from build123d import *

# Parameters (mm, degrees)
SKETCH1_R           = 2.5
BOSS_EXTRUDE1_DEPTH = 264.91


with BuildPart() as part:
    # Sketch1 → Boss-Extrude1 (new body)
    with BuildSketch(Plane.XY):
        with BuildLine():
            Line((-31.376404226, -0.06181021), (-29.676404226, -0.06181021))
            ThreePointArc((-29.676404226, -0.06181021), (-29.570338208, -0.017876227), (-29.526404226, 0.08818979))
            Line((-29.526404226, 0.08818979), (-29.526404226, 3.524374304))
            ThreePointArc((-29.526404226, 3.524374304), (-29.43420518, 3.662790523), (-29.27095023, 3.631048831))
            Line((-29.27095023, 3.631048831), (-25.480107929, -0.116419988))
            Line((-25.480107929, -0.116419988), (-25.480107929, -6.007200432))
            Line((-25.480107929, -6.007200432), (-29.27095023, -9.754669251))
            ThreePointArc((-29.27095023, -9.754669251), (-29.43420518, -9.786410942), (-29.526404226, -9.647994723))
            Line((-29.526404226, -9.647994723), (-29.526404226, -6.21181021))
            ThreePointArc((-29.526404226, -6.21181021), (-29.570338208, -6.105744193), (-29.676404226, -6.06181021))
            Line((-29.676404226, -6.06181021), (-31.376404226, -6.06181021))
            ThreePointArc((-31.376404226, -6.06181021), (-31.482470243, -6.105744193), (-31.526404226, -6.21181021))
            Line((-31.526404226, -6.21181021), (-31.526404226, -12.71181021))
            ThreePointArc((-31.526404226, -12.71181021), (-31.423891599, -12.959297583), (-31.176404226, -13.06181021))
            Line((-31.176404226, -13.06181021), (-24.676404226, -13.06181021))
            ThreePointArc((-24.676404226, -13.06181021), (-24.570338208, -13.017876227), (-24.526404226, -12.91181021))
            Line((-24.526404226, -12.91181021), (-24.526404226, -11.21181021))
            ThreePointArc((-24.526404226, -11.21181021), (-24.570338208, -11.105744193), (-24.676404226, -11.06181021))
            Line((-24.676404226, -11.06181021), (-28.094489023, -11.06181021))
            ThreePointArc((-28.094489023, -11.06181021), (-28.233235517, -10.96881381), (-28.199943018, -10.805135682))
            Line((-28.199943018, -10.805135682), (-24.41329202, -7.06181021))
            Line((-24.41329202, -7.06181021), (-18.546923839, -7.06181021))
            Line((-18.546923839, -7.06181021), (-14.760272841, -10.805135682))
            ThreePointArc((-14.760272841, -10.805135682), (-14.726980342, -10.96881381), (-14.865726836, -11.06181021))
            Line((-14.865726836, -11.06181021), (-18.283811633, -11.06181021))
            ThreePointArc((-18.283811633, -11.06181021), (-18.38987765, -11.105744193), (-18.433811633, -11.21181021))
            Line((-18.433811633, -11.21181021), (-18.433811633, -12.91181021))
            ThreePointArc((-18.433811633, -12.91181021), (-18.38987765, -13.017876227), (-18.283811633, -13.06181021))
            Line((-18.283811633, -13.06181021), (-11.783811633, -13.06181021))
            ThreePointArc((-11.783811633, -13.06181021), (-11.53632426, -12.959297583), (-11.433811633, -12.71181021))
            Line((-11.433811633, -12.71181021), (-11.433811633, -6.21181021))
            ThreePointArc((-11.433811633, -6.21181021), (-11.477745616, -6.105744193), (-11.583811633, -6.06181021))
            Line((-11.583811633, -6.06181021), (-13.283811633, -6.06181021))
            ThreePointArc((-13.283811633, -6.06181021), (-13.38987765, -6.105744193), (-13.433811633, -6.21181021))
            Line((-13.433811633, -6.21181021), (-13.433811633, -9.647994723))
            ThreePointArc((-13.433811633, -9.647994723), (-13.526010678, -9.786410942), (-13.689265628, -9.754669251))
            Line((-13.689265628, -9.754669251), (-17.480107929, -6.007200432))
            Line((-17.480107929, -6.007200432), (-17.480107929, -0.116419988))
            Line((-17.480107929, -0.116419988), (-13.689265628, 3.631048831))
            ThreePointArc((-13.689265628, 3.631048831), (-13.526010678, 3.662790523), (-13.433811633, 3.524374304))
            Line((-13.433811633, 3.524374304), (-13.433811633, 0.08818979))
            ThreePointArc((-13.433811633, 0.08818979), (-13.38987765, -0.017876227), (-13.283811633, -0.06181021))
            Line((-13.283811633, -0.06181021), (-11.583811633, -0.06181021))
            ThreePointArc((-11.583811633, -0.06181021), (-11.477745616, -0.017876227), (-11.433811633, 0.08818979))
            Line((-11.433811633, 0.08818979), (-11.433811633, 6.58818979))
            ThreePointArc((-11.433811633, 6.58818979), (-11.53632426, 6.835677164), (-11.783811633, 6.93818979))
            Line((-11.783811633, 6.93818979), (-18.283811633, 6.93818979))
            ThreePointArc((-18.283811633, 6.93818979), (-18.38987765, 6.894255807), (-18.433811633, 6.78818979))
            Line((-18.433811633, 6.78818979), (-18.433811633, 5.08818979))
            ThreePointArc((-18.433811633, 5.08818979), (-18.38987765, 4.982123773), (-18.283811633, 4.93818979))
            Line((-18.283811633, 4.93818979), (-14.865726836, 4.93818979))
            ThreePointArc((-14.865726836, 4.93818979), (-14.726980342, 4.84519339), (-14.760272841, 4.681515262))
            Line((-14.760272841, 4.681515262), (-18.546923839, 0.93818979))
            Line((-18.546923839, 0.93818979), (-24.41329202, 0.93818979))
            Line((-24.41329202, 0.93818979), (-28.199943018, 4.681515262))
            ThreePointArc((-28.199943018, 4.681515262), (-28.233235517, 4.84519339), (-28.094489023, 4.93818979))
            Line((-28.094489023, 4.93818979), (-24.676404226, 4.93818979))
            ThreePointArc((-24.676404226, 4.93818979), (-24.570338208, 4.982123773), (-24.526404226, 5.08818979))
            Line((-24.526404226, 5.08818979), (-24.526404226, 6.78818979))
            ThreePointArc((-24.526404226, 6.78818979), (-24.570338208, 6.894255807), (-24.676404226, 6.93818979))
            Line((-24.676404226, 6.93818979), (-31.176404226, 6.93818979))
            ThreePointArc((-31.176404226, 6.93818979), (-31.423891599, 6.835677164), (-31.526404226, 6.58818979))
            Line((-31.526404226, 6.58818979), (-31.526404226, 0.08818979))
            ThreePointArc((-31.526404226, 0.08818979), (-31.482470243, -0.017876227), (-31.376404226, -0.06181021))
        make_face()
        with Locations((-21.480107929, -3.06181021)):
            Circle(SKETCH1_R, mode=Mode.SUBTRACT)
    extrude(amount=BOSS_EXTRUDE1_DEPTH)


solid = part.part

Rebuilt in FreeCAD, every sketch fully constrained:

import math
import FreeCAD as App
import Part
import Sketcher

V = App.Vector
Q = App.Units.Quantity

doc = App.newDocument("Part")
body = doc.addObject("PartDesign::Body", "Body")

sketch1 = doc.addObject("Sketcher::SketchObject", "Sketch")
body.addObject(sketch1)
sketch1.AttachmentSupport = (doc.XY_Plane, [""])
sketch1.MapMode = "FlatFace"
sketch1.addGeometry([
    Part.LineSegment(V(-31.38, -0.06, 0), V(-29.68, -0.06, 0)),
    Part.ArcOfCircle(Part.Circle(V(-29.68, 0.09, 0), V(0, 0, 1), 0.15), math.radians(-90), math.radians(0)),
    Part.LineSegment(V(-29.53, 0.09, 0), V(-29.53, 3.52, 0)),
    Part.ArcOfCircle(Part.Circle(V(-29.38, 3.52, 0), V(0, 0, 1), 0.15), math.radians(45), math.radians(180)),
    Part.LineSegment(V(-29.27, 3.63, 0), V(-25.48, -0.12, 0)),
    Part.LineSegment(V(-25.48, -0.12, 0), V(-25.48, -6.01, 0)),
    Part.LineSegment(V(-25.48, -6.01, 0), V(-29.27, -9.75, 0)),
    Part.ArcOfCircle(Part.Circle(V(-29.38, -9.65, 0), V(0, 0, 1), 0.15), math.radians(-180), math.radians(-45)),
    Part.LineSegment(V(-29.53, -9.65, 0), V(-29.53, -6.21, 0)),
    Part.ArcOfCircle(Part.Circle(V(-29.68, -6.21, 0), V(0, 0, 1), 0.15), math.radians(0), math.radians(90)),
    Part.LineSegment(V(-29.68, -6.06, 0), V(-31.38, -6.06, 0)),
    Part.ArcOfCircle(Part.Circle(V(-31.38, -6.21, 0), V(0, 0, 1), 0.15), math.radians(90), math.radians(180)),
    Part.LineSegment(V(-31.53, -6.21, 0), V(-31.53, -12.71, 0)),
    Part.ArcOfCircle(Part.Circle(V(-31.18, -12.71, 0), V(0, 0, 1), 0.35), math.radians(-180), math.radians(-90)),
    Part.LineSegment(V(-31.18, -13.06, 0), V(-24.68, -13.06, 0)),
    Part.ArcOfCircle(Part.Circle(V(-24.68, -12.91, 0), V(0, 0, 1), 0.15), math.radians(-90), math.radians(0)),
    Part.LineSegment(V(-24.53, -12.91, 0), V(-24.53, -11.21, 0)),
    Part.ArcOfCircle(Part.Circle(V(-24.68, -11.21, 0), V(0, 0, 1), 0.15), math.radians(0), math.radians(90)),
    Part.LineSegment(V(-24.68, -11.06, 0), V(-28.09, -11.06, 0)),
    Part.ArcOfCircle(Part.Circle(V(-28.09, -10.91, 0), V(0, 0, 1), 0.15), math.radians(135), math.radians(270)),
    Part.LineSegment(V(-28.2, -10.81, 0), V(-24.41, -7.06, 0)),
    Part.LineSegment(V(-24.41, -7.06, 0), V(-18.55, -7.06, 0)),
    Part.LineSegment(V(-18.55, -7.06, 0), V(-14.76, -10.81, 0)),
    Part.ArcOfCircle(Part.Circle(V(-14.87, -10.91, 0), V(0, 0, 1), 0.15), math.radians(-90), math.radians(45)),
    Part.LineSegment(V(-14.87, -11.06, 0), V(-18.28, -11.06, 0)),
    Part.ArcOfCircle(Part.Circle(V(-18.28, -11.21, 0), V(0, 0, 1), 0.15), math.radians(90), math.radians(180)),
    Part.LineSegment(V(-18.43, -11.21, 0), V(-18.43, -12.91, 0)),
    Part.ArcOfCircle(Part.Circle(V(-18.28, -12.91, 0), V(0, 0, 1), 0.15), math.radians(-180), math.radians(-90)),
    Part.LineSegment(V(-18.28, -13.06, 0), V(-11.78, -13.06, 0)),
    Part.ArcOfCircle(Part.Circle(V(-11.78, -12.71, 0), V(0, 0, 1), 0.35), math.radians(-90), math.radians(0)),
    Part.LineSegment(V(-11.43, -12.71, 0), V(-11.43, -6.21, 0)),
    Part.ArcOfCircle(Part.Circle(V(-11.58, -6.21, 0), V(0, 0, 1), 0.15), math.radians(0), math.radians(90)),
    Part.LineSegment(V(-11.58, -6.06, 0), V(-13.28, -6.06, 0)),
    Part.ArcOfCircle(Part.Circle(V(-13.28, -6.21, 0), V(0, 0, 1), 0.15), math.radians(90), math.radians(180)),
    Part.LineSegment(V(-13.43, -6.21, 0), V(-13.43, -9.65, 0)),
    Part.ArcOfCircle(Part.Circle(V(-13.58, -9.65, 0), V(0, 0, 1), 0.15), math.radians(-135), math.radians(0)),
    Part.LineSegment(V(-13.69, -9.75, 0), V(-17.48, -6.01, 0)),
    Part.LineSegment(V(-17.48, -6.01, 0), V(-17.48, -0.12, 0)),
    Part.LineSegment(V(-17.48, -0.12, 0), V(-13.69, 3.63, 0)),
    Part.ArcOfCircle(Part.Circle(V(-13.58, 3.52, 0), V(0, 0, 1), 0.15), math.radians(0), math.radians(135)),
    Part.LineSegment(V(-13.43, 3.52, 0), V(-13.43, 0.09, 0)),
    Part.ArcOfCircle(Part.Circle(V(-13.28, 0.09, 0), V(0, 0, 1), 0.15), math.radians(-180), math.radians(-90)),
    Part.LineSegment(V(-13.28, -0.06, 0), V(-11.58, -0.06, 0)),
    Part.ArcOfCircle(Part.Circle(V(-11.58, 0.09, 0), V(0, 0, 1), 0.15), math.radians(-90), math.radians(0)),
    Part.LineSegment(V(-11.43, 0.09, 0), V(-11.43, 6.59, 0)),
    Part.ArcOfCircle(Part.Circle(V(-11.78, 6.59, 0), V(0, 0, 1), 0.35), math.radians(0), math.radians(90)),
    Part.LineSegment(V(-11.78, 6.94, 0), V(-18.28, 6.94, 0)),
    Part.ArcOfCircle(Part.Circle(V(-18.28, 6.79, 0), V(0, 0, 1), 0.15), math.radians(90), math.radians(180)),
    Part.LineSegment(V(-18.43, 6.79, 0), V(-18.43, 5.09, 0)),
    Part.ArcOfCircle(Part.Circle(V(-18.28, 5.09, 0), V(0, 0, 1), 0.15), math.radians(-180), math.radians(-90)),
    Part.LineSegment(V(-18.28, 4.94, 0), V(-14.87, 4.94, 0)),
    Part.ArcOfCircle(Part.Circle(V(-14.87, 4.79, 0), V(0, 0, 1), 0.15), math.radians(-45), math.radians(90)),
    Part.LineSegment(V(-14.76, 4.68, 0), V(-18.55, 0.94, 0)),
    Part.LineSegment(V(-18.55, 0.94, 0), V(-24.41, 0.94, 0)),
    Part.LineSegment(V(-24.41, 0.94, 0), V(-28.2, 4.68, 0)),
    Part.ArcOfCircle(Part.Circle(V(-28.09, 4.79, 0), V(0, 0, 1), 0.15), math.radians(90), math.radians(225)),
    Part.LineSegment(V(-28.09, 4.94, 0), V(-24.68, 4.94, 0)),
    Part.ArcOfCircle(Part.Circle(V(-24.68, 5.09, 0), V(0, 0, 1), 0.15), math.radians(-90), math.radians(0)),
    Part.LineSegment(V(-24.53, 5.09, 0), V(-24.53, 6.79, 0)),
    Part.ArcOfCircle(Part.Circle(V(-24.68, 6.79, 0), V(0, 0, 1), 0.15), math.radians(0), math.radians(90)),
    Part.LineSegment(V(-24.68, 6.94, 0), V(-31.18, 6.94, 0)),
    Part.ArcOfCircle(Part.Circle(V(-31.18, 6.59, 0), V(0, 0, 1), 0.35), math.radians(90), math.radians(180)),
    Part.LineSegment(V(-31.53, 6.59, 0), V(-31.53, 0.09, 0)),
    Part.ArcOfCircle(Part.Circle(V(-31.38, 0.09, 0), V(0, 0, 1), 0.15), math.radians(-180), math.radians(-90)),
    Part.Circle(V(-21.48, -3.06, 0), V(0, 0, 1), 2.5),
], False)
sketch1.addConstraint([
    Sketcher.Constraint("Tangent", 0, 2, 1, 1),
    Sketcher.Constraint("Tangent", 1, 2, 2, 1),
    Sketcher.Constraint("Tangent", 2, 2, 3, 2),
    Sketcher.Constraint("Tangent", 3, 1, 4, 1),
    Sketcher.Constraint("Coincident", 4, 2, 5, 1),
    Sketcher.Constraint("Coincident", 5, 2, 6, 1),
    Sketcher.Constraint("Tangent", 6, 2, 7, 2),
    Sketcher.Constraint("Tangent", 7, 1, 8, 1),
    Sketcher.Constraint("Tangent", 8, 2, 9, 1),
    Sketcher.Constraint("Tangent", 9, 2, 10, 1),
    Sketcher.Constraint("Tangent", 10, 2, 11, 1),
    Sketcher.Constraint("Tangent", 11, 2, 12, 1),
    Sketcher.Constraint("Tangent", 12, 2, 13, 1),
    Sketcher.Constraint("Tangent", 13, 2, 14, 1),
    Sketcher.Constraint("Tangent", 14, 2, 15, 1),
    Sketcher.Constraint("Tangent", 15, 2, 16, 1),
    Sketcher.Constraint("Tangent", 16, 2, 17, 1),
    Sketcher.Constraint("Tangent", 17, 2, 18, 1),
    Sketcher.Constraint("Tangent", 18, 2, 19, 2),
    Sketcher.Constraint("Tangent", 19, 1, 20, 1),
    Sketcher.Constraint("Coincident", 20, 2, 21, 1),
    Sketcher.Constraint("Coincident", 21, 2, 22, 1),
    Sketcher.Constraint("Tangent", 22, 2, 23, 2),
    Sketcher.Constraint("Tangent", 23, 1, 24, 1),
    Sketcher.Constraint("Tangent", 24, 2, 25, 1),
    Sketcher.Constraint("Tangent", 25, 2, 26, 1),
    Sketcher.Constraint("Tangent", 26, 2, 27, 1),
    Sketcher.Constraint("Tangent", 27, 2, 28, 1),
    Sketcher.Constraint("Tangent", 28, 2, 29, 1),
    Sketcher.Constraint("Tangent", 29, 2, 30, 1),
    Sketcher.Constraint("Tangent", 30, 2, 31, 1),
    Sketcher.Constraint("Tangent", 31, 2, 32, 1),
    Sketcher.Constraint("Tangent", 32, 2, 33, 1),
    Sketcher.Constraint("Tangent", 33, 2, 34, 1),
    Sketcher.Constraint("Tangent", 34, 2, 35, 2),
    Sketcher.Constraint("Tangent", 35, 1, 36, 1),
    Sketcher.Constraint("Coincident", 36, 2, 37, 1),
    Sketcher.Constraint("Coincident", 37, 2, 38, 1),
    Sketcher.Constraint("Tangent", 38, 2, 39, 2),
    Sketcher.Constraint("Tangent", 39, 1, 40, 1),
    Sketcher.Constraint("Tangent", 40, 2, 41, 1),
    Sketcher.Constraint("Tangent", 41, 2, 42, 1),
    Sketcher.Constraint("Tangent", 42, 2, 43, 1),
    Sketcher.Constraint("Tangent", 43, 2, 44, 1),
    Sketcher.Constraint("Tangent", 44, 2, 45, 1),
    Sketcher.Constraint("Tangent", 45, 2, 46, 1),
    Sketcher.Constraint("Tangent", 46, 2, 47, 1),
    Sketcher.Constraint("Tangent", 47, 2, 48, 1),
    Sketcher.Constraint("Tangent", 48, 2, 49, 1),
    Sketcher.Constraint("Tangent", 49, 2, 50, 1),
    Sketcher.Constraint("Tangent", 50, 2, 51, 2),
    Sketcher.Constraint("Tangent", 51, 1, 52, 1),
    Sketcher.Constraint("Coincident", 52, 2, 53, 1),
    Sketcher.Constraint("Coincident", 53, 2, 54, 1),
    Sketcher.Constraint("Tangent", 54, 2, 55, 2),
    Sketcher.Constraint("Tangent", 55, 1, 56, 1),
    Sketcher.Constraint("Tangent", 56, 2, 57, 1),
    Sketcher.Constraint("Tangent", 57, 2, 58, 1),
    Sketcher.Constraint("Tangent", 58, 2, 59, 1),
    Sketcher.Constraint("Tangent", 59, 2, 60, 1),
    Sketcher.Constraint("Tangent", 60, 2, 61, 1),
    Sketcher.Constraint("Tangent", 61, 2, 62, 1),
    Sketcher.Constraint("Tangent", 62, 2, 63, 1),
    Sketcher.Constraint("Tangent", 63, 2, 0, 1),
    Sketcher.Constraint("Horizontal", 0),
    Sketcher.Constraint("Vertical", 2),
    Sketcher.Constraint("Vertical", 5),
    Sketcher.Constraint("Vertical", 8),
    Sketcher.Constraint("Horizontal", 10),
    Sketcher.Constraint("Vertical", 12),
    Sketcher.Constraint("Horizontal", 14),
    Sketcher.Constraint("Vertical", 16),
    Sketcher.Constraint("Horizontal", 18),
    Sketcher.Constraint("Horizontal", 21),
    Sketcher.Constraint("Horizontal", 24),
    Sketcher.Constraint("Vertical", 26),
    Sketcher.Constraint("Horizontal", 28),
    Sketcher.Constraint("Vertical", 30),
    Sketcher.Constraint("Horizontal", 32),
    Sketcher.Constraint("Vertical", 34),
    Sketcher.Constraint("Vertical", 37),
    Sketcher.Constraint("Vertical", 40),
    Sketcher.Constraint("Horizontal", 42),
    Sketcher.Constraint("Vertical", 44),
    Sketcher.Constraint("Horizontal", 46),
    Sketcher.Constraint("Vertical", 48),
    Sketcher.Constraint("Horizontal", 50),
    Sketcher.Constraint("Horizontal", 53),
    Sketcher.Constraint("Horizontal", 56),
    Sketcher.Constraint("Vertical", 58),
    Sketcher.Constraint("Horizontal", 60),
    Sketcher.Constraint("Vertical", 62),
    Sketcher.Constraint("Equal", 1, 3),
    Sketcher.Constraint("Equal", 3, 7),
    Sketcher.Constraint("Equal", 7, 9),
    Sketcher.Constraint("Equal", 9, 11),
    Sketcher.Constraint("Equal", 11, 15),
    Sketcher.Constraint("Equal", 15, 17),
    Sketcher.Constraint("Equal", 17, 19),
    Sketcher.Constraint("Equal", 19, 23),
    Sketcher.Constraint("Equal", 23, 25),
    Sketcher.Constraint("Equal", 25, 27),
    Sketcher.Constraint("Equal", 13, 29),
    Sketcher.Constraint("Equal", 27, 31),
    Sketcher.Constraint("Equal", 31, 33),
    Sketcher.Constraint("Equal", 33, 35),
    Sketcher.Constraint("Equal", 35, 39),
    Sketcher.Constraint("Equal", 39, 41),
    Sketcher.Constraint("Equal", 41, 43),
    Sketcher.Constraint("Equal", 29, 45),
    Sketcher.Constraint("Equal", 43, 47),
    Sketcher.Constraint("Equal", 47, 49),
    Sketcher.Constraint("Equal", 49, 51),
    Sketcher.Constraint("Equal", 51, 55),
    Sketcher.Constraint("Equal", 55, 57),
    Sketcher.Constraint("Equal", 57, 59),
    Sketcher.Constraint("Equal", 45, 61),
    Sketcher.Constraint("Equal", 59, 63),
    Sketcher.Constraint("Parallel", 6, 20),
    Sketcher.Constraint("Parallel", 4, 22),
    Sketcher.Constraint("Parallel", 22, 36),
    Sketcher.Constraint("Parallel", 20, 38),
    Sketcher.Constraint("Parallel", 38, 52),
    Sketcher.Constraint("Parallel", 36, 54),
    Sketcher.Constraint("Horizontal", 19, 3, 23, 3),
    Sketcher.Constraint("Horizontal", 15, 3, 27, 3),
    Sketcher.Constraint("Horizontal", 11, 3, 31, 3),
    Sketcher.Constraint("Horizontal", 7, 3, 35, 3),
    Sketcher.Constraint("Horizontal", 3, 3, 39, 3),
    Sketcher.Constraint("Horizontal", 1, 3, 41, 3),
    Sketcher.Constraint("Horizontal", 51, 3, 55, 3),
    Sketcher.Constraint("Horizontal", 47, 3, 59, 3),
    Sketcher.Constraint("Horizontal", 19, 1, 22, 2),
    Sketcher.Constraint("Horizontal", 5, 2, 36, 2),
    Sketcher.Constraint("Horizontal", 4, 2, 37, 2),
    Sketcher.Constraint("Vertical", 3, 3, 7, 3),
    Sketcher.Constraint("Vertical", 31, 3, 43, 3),
    Sketcher.Constraint("Vertical", 27, 3, 47, 3),
    Sketcher.Constraint("Vertical", 23, 3, 51, 3),
    Sketcher.Constraint("Vertical", 19, 3, 55, 3),
    Sketcher.Constraint("Vertical", 17, 3, 57, 3),
    Sketcher.Constraint("Vertical", 13, 3, 61, 3),
    Sketcher.Constraint("Vertical", 21, 2, 52, 2),
    Sketcher.Constraint("Equal", 18, 24),
    Sketcher.Constraint("Equal", 14, 28),
    Sketcher.Constraint("Equal", 10, 32),
    Sketcher.Constraint("Equal", 2, 8),
    Sketcher.Constraint("Equal", 60, 12),
    Sketcher.Constraint("Equal", 42, 16),
    Sketcher.Constraint("Equal", 30, 44),
    Sketcher.Constraint("Equal", 26, 48),
    Sketcher.Constraint("Diameter", 64, Q("5 mm")),
    Sketcher.Constraint("Radius", 1, Q("0.15 mm")),
    Sketcher.Constraint("Radius", 13, Q("0.35 mm")),
    Sketcher.Constraint("DistanceX", 0, 1, 0, 2, Q("1.7 mm")),
    Sketcher.Constraint("DistanceX", 14, 1, 14, 2, Q("6.5 mm")),
    Sketcher.Constraint("DistanceX", 21, 1, 21, 2, Q("5.866368 mm")),
    Sketcher.Constraint("DistanceY", 5, 2, 5, 1, Q("5.89078 mm")),
    Sketcher.Constraint("DistanceY", 5, 2, -1, 1, Q("6.0072 mm")),
    Sketcher.Constraint("Distance", 4, Q("5.330479 mm")),
    Sketcher.Constraint("DistanceX", 18, 2, 18, 1, Q("3.418085 mm")),
    Sketcher.Constraint("DistanceY", 2, 1, 2, 2, Q("3.436185 mm")),
    Sketcher.Constraint("DistanceY", -1, 1, 1, 3, Q("0.08819 mm")),
    Sketcher.Constraint("DistanceX", 19, 3, -1, 1, Q("28.094489 mm")),
    Sketcher.Constraint("DistanceX", 25, 3, -1, 1, Q("18.283812 mm")),
    Sketcher.Constraint("DistanceY", 64, 3, -1, 1, Q("3.06181 mm")),
    Sketcher.Constraint("DistanceX", 64, 3, -1, 1, Q("21.480108 mm")),
])
pad1 = doc.addObject("PartDesign::Pad", "Pad")
body.addObject(pad1)
pad1.Profile = sketch1
pad1.Length = 264.91

doc.recompute()
